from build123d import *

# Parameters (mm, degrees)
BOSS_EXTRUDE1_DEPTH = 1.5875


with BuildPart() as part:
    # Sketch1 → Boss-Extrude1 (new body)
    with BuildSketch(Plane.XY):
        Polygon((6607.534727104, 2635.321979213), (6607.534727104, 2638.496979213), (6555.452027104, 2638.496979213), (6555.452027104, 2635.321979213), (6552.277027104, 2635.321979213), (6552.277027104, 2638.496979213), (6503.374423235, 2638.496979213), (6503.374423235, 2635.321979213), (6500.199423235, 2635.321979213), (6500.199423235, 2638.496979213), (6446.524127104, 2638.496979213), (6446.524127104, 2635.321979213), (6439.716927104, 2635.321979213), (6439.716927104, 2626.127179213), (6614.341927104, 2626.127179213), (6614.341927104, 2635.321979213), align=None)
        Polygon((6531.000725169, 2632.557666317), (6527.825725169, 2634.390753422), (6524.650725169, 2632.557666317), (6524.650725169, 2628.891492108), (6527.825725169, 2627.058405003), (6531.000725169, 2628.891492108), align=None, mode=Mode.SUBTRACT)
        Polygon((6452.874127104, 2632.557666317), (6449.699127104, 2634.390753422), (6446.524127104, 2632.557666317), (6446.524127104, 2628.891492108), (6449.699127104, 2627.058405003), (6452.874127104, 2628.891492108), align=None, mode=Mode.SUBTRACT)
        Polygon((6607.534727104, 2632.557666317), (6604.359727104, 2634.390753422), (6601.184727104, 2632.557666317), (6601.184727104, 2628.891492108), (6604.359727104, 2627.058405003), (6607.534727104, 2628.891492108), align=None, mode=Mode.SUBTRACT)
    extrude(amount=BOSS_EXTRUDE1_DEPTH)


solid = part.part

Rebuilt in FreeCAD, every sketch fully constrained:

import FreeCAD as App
import Part
import Sketcher
Q = App.Units.Quantity


def add_polygon(sketch, points):
    """Adds a closed chain of lines whose ends are joined by coincident constraints."""
    first, n = sketch.GeometryCount, len(points)
    for a, b in zip(points, points[1:] + points[:1]):
        sketch.addGeometry(Part.LineSegment(App.Vector(*a, 0), App.Vector(*b, 0)), False)
    for i in range(n):
        sketch.addConstraint(Sketcher.Constraint("Coincident", first + i, 2, first + (i + 1) % n, 1))

doc = App.newDocument("Part")
body = doc.addObject("PartDesign::Body", "Body")

# Sketch on XY plane
sketch1 = body.newObject("Sketcher::SketchObject", "Sketch")
sketch1.AttachmentSupport = (doc.getObject("XY_Plane"), [""])
sketch1.MapMode = "FlatFace"
add_polygon(sketch1, [(6607.534727, 2635.321979), (6607.534727, 2638.496979), (6555.452027, 2638.496979), (6555.452027, 2635.321979), (6552.277027, 2635.321979), (6552.277027, 2638.496979), (6503.374423, 2638.496979), (6503.374423, 2635.321979), (6500.199423, 2635.321979), (6500.199423, 2638.496979), (6446.524127, 2638.496979), (6446.524127, 2635.321979), (6439.716927, 2635.321979), (6439.716927, 2626.127179), (6614.341927, 2626.127179), (6614.341927, 2635.321979)])  # lines 0-15
add_polygon(sketch1, [(6449.699127, 2634.390753), (6452.874127, 2632.557666), (6452.874127, 2628.891492), (6449.699127, 2627.058405), (6446.524127, 2628.891492), (6446.524127, 2632.557666)])  # lines 16-21
add_polygon(sketch1, [(6527.825725, 2634.390753), (6531.000725, 2632.557666), (6531.000725, 2628.891492), (6527.825725, 2627.058405), (6524.650725, 2628.891492), (6524.650725, 2632.557666)])  # lines 22-27
add_polygon(sketch1, [(6604.359727, 2634.390753), (6607.534727, 2632.557666), (6607.534727, 2628.891492), (6604.359727, 2627.058405), (6601.184727, 2628.891492), (6601.184727, 2632.557666)])  # lines 28-33
sketch1.addConstraint([
    Sketcher.Constraint("Vertical", 0),
    Sketcher.Constraint("Horizontal", 1),
    Sketcher.Constraint("Vertical", 2),
    Sketcher.Constraint("Horizontal", 3),
    Sketcher.Constraint("Vertical", 4),
    Sketcher.Constraint("Horizontal", 5),
    Sketcher.Constraint("Vertical", 6),
    Sketcher.Constraint("Horizontal", 7),
    Sketcher.Constraint("Vertical", 8),
    Sketcher.Constraint("Horizontal", 9),
    Sketcher.Constraint("Vertical", 10),
    Sketcher.Constraint("Horizontal", 11),
    Sketcher.Constraint("Vertical", 12),
    Sketcher.Constraint("Horizontal", 13),
    Sketcher.Constraint("Vertical", 14),
    Sketcher.Constraint("Horizontal", 15),
    Sketcher.Constraint("Vertical", 17),
    Sketcher.Constraint("Vertical", 20),
    Sketcher.Constraint("Vertical", 23),
    Sketcher.Constraint("Vertical", 26),
    Sketcher.Constraint("Vertical", 29),
    Sketcher.Constraint("Vertical", 32),
    Sketcher.Constraint("Parallel", 16, 19),
    Sketcher.Constraint("Parallel", 18, 21),
    Sketcher.Constraint("Parallel", 19, 22),
    Sketcher.Constraint("Parallel", 21, 24),
    Sketcher.Constraint("Parallel", 22, 25),
    Sketcher.Constraint("Parallel", 24, 27),
    Sketcher.Constraint("Parallel", 25, 28),
    Sketcher.Constraint("Parallel", 27, 30),
    Sketcher.Constraint("Parallel", 28, 31),
    Sketcher.Constraint("Parallel", 30, 33),
    Sketcher.Constraint("Horizontal", 1, 2, 4, 2),
    Sketcher.Constraint("Horizontal", 3, 2, 6, 2),
    Sketcher.Constraint("Horizontal", 5, 2, 8, 2),
    Sketcher.Constraint("Horizontal", 7, 2, 10, 2),
    Sketcher.Constraint("Horizontal", 11, 2, 14, 2),
    Sketcher.Constraint("Horizontal", 17, 2, 19, 2),
    Sketcher.Constraint("Horizontal", 16, 2, 20, 2),
    Sketcher.Constraint("Horizontal", 20, 2, 22, 2),
    Sketcher.Constraint("Horizontal", 19, 2, 23, 2),
    Sketcher.Constraint("Horizontal", 18, 2, 24, 2),
    Sketcher.Constraint("Horizontal", 23, 2, 25, 2),
    Sketcher.Constraint("Horizontal", 22, 2, 26, 2),
    Sketcher.Constraint("Horizontal", 26, 2, 28, 2),
    Sketcher.Constraint("Horizontal", 25, 2, 29, 2),
    Sketcher.Constraint("Horizontal", 24, 2, 30, 2),
    Sketcher.Constraint("Horizontal", 29, 2, 31, 2),
    Sketcher.Constraint("Horizontal", 28, 2, 32, 2),
    Sketcher.Constraint("Vertical", 10, 2, 19, 2),
    Sketcher.Constraint("Vertical", 18, 2, 21, 2),
    Sketcher.Constraint("Vertical", 15, 2, 28, 2),
    Sketcher.Constraint("Equal", 3, 7),
    Sketcher.Constraint("Equal", 11, 15),
    Sketcher.Constraint("Equal", 7, 0),
    Sketcher.Constraint("Angle", 16, Q("-30 deg")),
    Sketcher.Constraint("DistanceX", 3, 2, 3, 1, Q("0.125 in")),
    Sketcher.Constraint("DistanceX", 11, 2, 11, 1, Q("0.268 in")),
    Sketcher.Constraint("DistanceX", 13, 1, 13, 2, Q("6.875 in")),
    Sketcher.Constraint("DistanceY", 12, 2, 12, 1, Q("0.362 in")),
    Sketcher.Constraint("DistanceX", 10, 2, 16, 2, Q("0.25 in")),
    Sketcher.Constraint("DistanceX", 1, 2, 1, 1, Q("2.0505 in")),
    Sketcher.Constraint("DistanceX", 22, 2, 3, 2, Q("21.276302 mm")),
    Sketcher.Constraint("DistanceX", 6, 2, 22, 2, Q("27.626302 mm")),
    Sketcher.Constraint("DistanceY", 17, 2, 17, 1, Q("3.666174 mm")),
    Sketcher.Constraint("DistanceY", -1, 1, 0, 2, Q("2638.496979 mm")),
    Sketcher.Constraint("DistanceX", -1, 1, 0, 2, Q("6607.534727 mm")),
    Sketcher.Constraint("DistanceY", -1, 1, 16, 2, Q("2632.557666 mm")),
])
pad1 = body.newObject("PartDesign::Pad", "Pad")
pad1.Profile = sketch1
pad1.Length = Q("0.0625 in")

doc.recompute()
